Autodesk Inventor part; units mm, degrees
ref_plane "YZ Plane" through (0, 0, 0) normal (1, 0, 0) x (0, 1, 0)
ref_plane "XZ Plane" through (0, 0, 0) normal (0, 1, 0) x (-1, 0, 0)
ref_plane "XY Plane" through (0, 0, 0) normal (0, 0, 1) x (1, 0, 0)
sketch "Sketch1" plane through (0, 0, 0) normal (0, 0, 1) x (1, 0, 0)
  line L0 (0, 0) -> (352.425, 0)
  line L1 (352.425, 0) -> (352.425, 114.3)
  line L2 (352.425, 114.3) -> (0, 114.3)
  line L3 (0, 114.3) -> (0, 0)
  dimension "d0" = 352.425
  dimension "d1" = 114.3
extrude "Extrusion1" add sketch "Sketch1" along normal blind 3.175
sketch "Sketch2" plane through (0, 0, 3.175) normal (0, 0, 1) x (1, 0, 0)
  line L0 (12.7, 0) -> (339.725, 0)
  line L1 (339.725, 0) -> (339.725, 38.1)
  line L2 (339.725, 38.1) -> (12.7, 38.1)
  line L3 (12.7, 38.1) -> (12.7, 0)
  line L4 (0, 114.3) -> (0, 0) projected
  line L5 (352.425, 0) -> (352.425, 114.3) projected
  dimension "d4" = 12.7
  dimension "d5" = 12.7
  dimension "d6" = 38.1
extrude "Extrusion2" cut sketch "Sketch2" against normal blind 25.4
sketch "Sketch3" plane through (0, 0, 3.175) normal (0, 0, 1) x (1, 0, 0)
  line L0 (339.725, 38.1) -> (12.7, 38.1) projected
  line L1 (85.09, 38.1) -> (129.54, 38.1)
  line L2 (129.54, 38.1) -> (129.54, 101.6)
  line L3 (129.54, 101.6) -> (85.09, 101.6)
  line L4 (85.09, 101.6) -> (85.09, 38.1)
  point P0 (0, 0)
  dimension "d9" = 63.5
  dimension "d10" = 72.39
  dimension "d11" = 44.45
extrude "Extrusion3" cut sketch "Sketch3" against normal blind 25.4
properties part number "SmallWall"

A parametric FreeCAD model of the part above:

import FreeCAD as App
import Part
import Sketcher
from FreeCAD import Vector
Q = App.Units.Quantity


def add_polygon(sketch, points):
    """Adds a closed chain of lines whose ends are joined by coincident constraints."""
    first, n = sketch.GeometryCount, len(points)
    for a, b in zip(points, points[1:] + points[:1]):
        sketch.addGeometry(Part.LineSegment(App.Vector(*a, 0), App.Vector(*b, 0)), False)
    for i in range(n):
        sketch.addConstraint(Sketcher.Constraint("Coincident", first + i, 2, first + (i + 1) % n, 1))

doc = App.newDocument("Part")
body = doc.addObject("PartDesign::Body", "Body")

sketch1 = body.newObject("Sketcher::SketchObject", "Sketch")
sketch1.AttachmentSupport = (doc.getObject("XY_Plane"), [""])
sketch1.MapMode = "FlatFace"
add_polygon(sketch1, [(0, 114.3), (0, 0), (352.425, 0), (352.425, 114.3)])
sketch1.addConstraint([
    Sketcher.Constraint("Vertical", 0),
    Sketcher.Constraint("Horizontal", 1),
    Sketcher.Constraint("Vertical", 2),
    Sketcher.Constraint("Horizontal", 3),
    Sketcher.Constraint("Coincident", 0, 2, -1, 1),
    Sketcher.Constraint("DistanceY", 0, 2, 0, 1, Q("4.5 in")),
    Sketcher.Constraint("DistanceX", 1, 1, 1, 2, Q("13.875 in")),
])
pad1 = body.newObject("PartDesign::Pad", "Pad")
pad1.Profile = sketch1
pad1.Length = Q("0.125 in")

sketch2 = body.newObject("Sketcher::SketchObject", "Sketch001")
sketch2.AttachmentSupport = (doc.getObject("XY_Plane"), [""])
sketch2.MapMode = "FlatFace"
sketch2.AttachmentOffset = App.Placement(Vector(0, 0, 0.125 * 25.4), App.Rotation())
add_polygon(sketch2, [(12.7, 38.1), (12.7, 0), (339.725, 0), (339.725, 38.1)])
sketch2.addConstraint([
    Sketcher.Constraint("Vertical", 0),
    Sketcher.Constraint("Horizontal", 1),
    Sketcher.Constraint("Vertical", 2),
    Sketcher.Constraint("Horizontal", 3),
    Sketcher.Constraint("PointOnObject", 0, 2, -1),
    Sketcher.Constraint("DistanceY", 0, 2, 0, 1, Q("1.5 in")),
    Sketcher.Constraint("DistanceX", -1, 1, 0, 2, Q("0.5 in")),
    Sketcher.Constraint("DistanceX", 1, 1, 1, 2, Q("12.875 in")),
])
pocket1 = body.newObject("PartDesign::Pocket", "Pocket")
pocket1.Profile = sketch2
pocket1.Length = Q("1 in")

sketch3 = body.newObject("Sketcher::SketchObject", "Sketch002")
sketch3.AttachmentSupport = (doc.getObject("XY_Plane"), [""])
sketch3.MapMode = "FlatFace"
sketch3.AttachmentOffset = App.Placement(Vector(0, 0, 0.125 * 25.4), App.Rotation())
add_polygon(sketch3, [(85.09, 38.1), (129.54, 38.1), (129.54, 101.6), (85.09, 101.6)])
sketch3.addConstraint([
    Sketcher.Constraint("Horizontal", 0),
    Sketcher.Constraint("Vertical", 1),
    Sketcher.Constraint("Horizontal", 2),
    Sketcher.Constraint("Vertical", 3),
    Sketcher.Constraint("DistanceY", 1, 1, 1, 2, Q("2.5 in")),
    Sketcher.Constraint("DistanceX", 0, 1, 0, 2, Q("1.75 in")),
    Sketcher.Constraint("DistanceY", -1, 1, 1, 2, Q("4 in")),
    Sketcher.Constraint("DistanceX", -1, 1, 0, 2, Q("5.1 in")),
])
pocket2 = body.newObject("PartDesign::Pocket", "Pocket001")
pocket2.Profile = sketch3
pocket2.Length = Q("1 in")

doc.recompute()
